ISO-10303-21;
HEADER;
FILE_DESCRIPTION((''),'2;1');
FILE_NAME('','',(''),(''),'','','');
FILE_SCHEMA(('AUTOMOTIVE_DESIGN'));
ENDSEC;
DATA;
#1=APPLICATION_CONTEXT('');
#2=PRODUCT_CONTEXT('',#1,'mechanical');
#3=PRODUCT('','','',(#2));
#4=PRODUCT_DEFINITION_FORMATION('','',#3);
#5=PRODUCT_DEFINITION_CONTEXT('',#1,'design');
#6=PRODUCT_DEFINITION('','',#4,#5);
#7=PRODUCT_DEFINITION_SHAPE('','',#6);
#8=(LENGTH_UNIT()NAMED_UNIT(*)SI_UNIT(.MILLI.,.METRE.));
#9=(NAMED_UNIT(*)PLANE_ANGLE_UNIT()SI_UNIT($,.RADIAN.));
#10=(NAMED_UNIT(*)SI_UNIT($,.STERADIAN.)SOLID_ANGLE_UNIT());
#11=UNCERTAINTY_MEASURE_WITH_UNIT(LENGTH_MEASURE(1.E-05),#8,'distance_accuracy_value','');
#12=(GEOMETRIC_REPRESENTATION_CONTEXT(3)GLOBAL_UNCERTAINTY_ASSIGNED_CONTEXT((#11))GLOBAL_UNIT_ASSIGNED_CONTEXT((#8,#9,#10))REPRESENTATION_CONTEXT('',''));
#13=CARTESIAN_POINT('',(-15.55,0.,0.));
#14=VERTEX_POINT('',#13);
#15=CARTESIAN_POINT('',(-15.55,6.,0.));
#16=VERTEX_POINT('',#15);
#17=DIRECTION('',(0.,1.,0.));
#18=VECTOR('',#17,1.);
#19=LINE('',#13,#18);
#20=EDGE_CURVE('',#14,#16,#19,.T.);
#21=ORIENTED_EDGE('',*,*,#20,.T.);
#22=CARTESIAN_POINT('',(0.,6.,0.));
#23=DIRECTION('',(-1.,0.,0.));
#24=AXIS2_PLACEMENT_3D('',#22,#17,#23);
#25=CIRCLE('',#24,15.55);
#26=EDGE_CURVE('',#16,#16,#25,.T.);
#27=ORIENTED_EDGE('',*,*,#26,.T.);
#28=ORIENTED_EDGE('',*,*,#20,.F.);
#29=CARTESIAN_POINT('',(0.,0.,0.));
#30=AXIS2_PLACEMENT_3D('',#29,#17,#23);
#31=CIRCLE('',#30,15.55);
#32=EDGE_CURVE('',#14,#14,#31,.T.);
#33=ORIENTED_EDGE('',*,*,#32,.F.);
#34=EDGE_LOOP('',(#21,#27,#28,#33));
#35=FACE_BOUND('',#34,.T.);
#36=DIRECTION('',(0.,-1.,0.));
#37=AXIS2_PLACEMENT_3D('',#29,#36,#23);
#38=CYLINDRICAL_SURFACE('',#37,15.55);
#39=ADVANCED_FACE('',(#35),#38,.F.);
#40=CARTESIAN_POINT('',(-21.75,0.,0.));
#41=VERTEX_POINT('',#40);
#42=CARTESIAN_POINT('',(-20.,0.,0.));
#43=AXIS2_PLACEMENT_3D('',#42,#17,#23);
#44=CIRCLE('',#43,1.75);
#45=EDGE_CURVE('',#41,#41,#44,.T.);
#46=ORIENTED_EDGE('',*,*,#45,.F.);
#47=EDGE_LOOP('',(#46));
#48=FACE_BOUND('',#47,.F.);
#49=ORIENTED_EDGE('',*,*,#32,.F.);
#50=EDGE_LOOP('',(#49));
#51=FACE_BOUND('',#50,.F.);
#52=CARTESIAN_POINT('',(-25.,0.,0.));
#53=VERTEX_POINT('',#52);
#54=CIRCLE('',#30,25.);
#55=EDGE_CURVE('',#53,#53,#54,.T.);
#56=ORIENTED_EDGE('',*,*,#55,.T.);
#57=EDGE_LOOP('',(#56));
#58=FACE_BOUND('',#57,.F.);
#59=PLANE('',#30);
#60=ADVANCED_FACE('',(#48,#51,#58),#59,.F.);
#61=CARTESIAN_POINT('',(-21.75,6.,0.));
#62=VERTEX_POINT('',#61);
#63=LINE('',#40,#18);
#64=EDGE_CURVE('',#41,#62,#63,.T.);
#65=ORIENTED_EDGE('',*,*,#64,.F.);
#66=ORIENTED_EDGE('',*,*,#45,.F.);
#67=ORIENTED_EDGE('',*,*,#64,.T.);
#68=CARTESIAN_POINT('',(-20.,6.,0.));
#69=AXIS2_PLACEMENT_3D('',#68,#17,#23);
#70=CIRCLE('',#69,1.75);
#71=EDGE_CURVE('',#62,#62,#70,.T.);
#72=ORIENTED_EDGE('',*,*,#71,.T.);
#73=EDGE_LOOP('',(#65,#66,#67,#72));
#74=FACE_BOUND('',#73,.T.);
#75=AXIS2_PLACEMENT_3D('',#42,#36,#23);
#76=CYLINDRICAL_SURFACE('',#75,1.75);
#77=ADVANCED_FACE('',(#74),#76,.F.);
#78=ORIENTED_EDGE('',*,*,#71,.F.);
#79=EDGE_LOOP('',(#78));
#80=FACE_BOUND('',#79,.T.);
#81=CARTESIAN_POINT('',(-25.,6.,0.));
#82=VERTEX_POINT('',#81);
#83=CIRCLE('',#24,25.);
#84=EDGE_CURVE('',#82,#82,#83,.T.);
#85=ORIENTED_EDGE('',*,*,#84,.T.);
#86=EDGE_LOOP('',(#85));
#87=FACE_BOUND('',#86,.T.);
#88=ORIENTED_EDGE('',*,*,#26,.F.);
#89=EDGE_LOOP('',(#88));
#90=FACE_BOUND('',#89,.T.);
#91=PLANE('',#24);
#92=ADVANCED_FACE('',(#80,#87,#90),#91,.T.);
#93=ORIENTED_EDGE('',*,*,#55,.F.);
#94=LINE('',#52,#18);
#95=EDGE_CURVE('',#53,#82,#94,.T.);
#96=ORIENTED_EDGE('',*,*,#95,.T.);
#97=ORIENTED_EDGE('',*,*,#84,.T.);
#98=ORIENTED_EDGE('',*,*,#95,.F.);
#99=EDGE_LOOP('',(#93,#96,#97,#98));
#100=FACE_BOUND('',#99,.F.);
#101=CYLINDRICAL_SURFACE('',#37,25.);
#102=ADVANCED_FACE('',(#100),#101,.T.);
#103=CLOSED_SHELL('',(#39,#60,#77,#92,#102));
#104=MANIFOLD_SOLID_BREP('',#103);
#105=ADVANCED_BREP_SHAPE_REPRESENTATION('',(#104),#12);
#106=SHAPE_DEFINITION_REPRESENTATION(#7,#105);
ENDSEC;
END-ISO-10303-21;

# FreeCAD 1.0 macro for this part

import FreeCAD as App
import Part
import Sketcher
Q = App.Units.Quantity

doc = App.newDocument("Part")
body = doc.addObject("PartDesign::Body", "Body")

# Sketch on XZ plane
sketch1 = body.newObject("Sketcher::SketchObject", "Sketch")
sketch1.AttachmentSupport = (doc.getObject("XZ_Plane"), [""])
sketch1.MapMode = "FlatFace"
sketch1.addGeometry([
    Part.Circle(App.Vector(0, 0, 0), App.Vector(0, 0, 1), 25),
    Part.Circle(App.Vector(0, 0, 0), App.Vector(0, 0, 1), 15.55),
    Part.Circle(App.Vector(-20, 0, 0), App.Vector(0, 0, 1), 1.75),
], False)
sketch1.addConstraint([
    Sketcher.Constraint("Coincident", 0, 3, -1, 1),
    Sketcher.Constraint("Coincident", 1, 3, -1, 1),
    Sketcher.Constraint("PointOnObject", 2, 3, -1),
    Sketcher.Constraint("Diameter", 0, Q("50 mm")),
    Sketcher.Constraint("Diameter", 1, Q("31.1 mm")),
    Sketcher.Constraint("Diameter", 2, Q("3.5 mm")),
    Sketcher.Constraint("DistanceX", 2, 3, -1, 1, Q("20 mm")),
])
pad1 = body.newObject("PartDesign::Pad", "Pad")
pad1.Profile = sketch1
pad1.Length = 6
pad1.Reversed = True

doc.recompute()
